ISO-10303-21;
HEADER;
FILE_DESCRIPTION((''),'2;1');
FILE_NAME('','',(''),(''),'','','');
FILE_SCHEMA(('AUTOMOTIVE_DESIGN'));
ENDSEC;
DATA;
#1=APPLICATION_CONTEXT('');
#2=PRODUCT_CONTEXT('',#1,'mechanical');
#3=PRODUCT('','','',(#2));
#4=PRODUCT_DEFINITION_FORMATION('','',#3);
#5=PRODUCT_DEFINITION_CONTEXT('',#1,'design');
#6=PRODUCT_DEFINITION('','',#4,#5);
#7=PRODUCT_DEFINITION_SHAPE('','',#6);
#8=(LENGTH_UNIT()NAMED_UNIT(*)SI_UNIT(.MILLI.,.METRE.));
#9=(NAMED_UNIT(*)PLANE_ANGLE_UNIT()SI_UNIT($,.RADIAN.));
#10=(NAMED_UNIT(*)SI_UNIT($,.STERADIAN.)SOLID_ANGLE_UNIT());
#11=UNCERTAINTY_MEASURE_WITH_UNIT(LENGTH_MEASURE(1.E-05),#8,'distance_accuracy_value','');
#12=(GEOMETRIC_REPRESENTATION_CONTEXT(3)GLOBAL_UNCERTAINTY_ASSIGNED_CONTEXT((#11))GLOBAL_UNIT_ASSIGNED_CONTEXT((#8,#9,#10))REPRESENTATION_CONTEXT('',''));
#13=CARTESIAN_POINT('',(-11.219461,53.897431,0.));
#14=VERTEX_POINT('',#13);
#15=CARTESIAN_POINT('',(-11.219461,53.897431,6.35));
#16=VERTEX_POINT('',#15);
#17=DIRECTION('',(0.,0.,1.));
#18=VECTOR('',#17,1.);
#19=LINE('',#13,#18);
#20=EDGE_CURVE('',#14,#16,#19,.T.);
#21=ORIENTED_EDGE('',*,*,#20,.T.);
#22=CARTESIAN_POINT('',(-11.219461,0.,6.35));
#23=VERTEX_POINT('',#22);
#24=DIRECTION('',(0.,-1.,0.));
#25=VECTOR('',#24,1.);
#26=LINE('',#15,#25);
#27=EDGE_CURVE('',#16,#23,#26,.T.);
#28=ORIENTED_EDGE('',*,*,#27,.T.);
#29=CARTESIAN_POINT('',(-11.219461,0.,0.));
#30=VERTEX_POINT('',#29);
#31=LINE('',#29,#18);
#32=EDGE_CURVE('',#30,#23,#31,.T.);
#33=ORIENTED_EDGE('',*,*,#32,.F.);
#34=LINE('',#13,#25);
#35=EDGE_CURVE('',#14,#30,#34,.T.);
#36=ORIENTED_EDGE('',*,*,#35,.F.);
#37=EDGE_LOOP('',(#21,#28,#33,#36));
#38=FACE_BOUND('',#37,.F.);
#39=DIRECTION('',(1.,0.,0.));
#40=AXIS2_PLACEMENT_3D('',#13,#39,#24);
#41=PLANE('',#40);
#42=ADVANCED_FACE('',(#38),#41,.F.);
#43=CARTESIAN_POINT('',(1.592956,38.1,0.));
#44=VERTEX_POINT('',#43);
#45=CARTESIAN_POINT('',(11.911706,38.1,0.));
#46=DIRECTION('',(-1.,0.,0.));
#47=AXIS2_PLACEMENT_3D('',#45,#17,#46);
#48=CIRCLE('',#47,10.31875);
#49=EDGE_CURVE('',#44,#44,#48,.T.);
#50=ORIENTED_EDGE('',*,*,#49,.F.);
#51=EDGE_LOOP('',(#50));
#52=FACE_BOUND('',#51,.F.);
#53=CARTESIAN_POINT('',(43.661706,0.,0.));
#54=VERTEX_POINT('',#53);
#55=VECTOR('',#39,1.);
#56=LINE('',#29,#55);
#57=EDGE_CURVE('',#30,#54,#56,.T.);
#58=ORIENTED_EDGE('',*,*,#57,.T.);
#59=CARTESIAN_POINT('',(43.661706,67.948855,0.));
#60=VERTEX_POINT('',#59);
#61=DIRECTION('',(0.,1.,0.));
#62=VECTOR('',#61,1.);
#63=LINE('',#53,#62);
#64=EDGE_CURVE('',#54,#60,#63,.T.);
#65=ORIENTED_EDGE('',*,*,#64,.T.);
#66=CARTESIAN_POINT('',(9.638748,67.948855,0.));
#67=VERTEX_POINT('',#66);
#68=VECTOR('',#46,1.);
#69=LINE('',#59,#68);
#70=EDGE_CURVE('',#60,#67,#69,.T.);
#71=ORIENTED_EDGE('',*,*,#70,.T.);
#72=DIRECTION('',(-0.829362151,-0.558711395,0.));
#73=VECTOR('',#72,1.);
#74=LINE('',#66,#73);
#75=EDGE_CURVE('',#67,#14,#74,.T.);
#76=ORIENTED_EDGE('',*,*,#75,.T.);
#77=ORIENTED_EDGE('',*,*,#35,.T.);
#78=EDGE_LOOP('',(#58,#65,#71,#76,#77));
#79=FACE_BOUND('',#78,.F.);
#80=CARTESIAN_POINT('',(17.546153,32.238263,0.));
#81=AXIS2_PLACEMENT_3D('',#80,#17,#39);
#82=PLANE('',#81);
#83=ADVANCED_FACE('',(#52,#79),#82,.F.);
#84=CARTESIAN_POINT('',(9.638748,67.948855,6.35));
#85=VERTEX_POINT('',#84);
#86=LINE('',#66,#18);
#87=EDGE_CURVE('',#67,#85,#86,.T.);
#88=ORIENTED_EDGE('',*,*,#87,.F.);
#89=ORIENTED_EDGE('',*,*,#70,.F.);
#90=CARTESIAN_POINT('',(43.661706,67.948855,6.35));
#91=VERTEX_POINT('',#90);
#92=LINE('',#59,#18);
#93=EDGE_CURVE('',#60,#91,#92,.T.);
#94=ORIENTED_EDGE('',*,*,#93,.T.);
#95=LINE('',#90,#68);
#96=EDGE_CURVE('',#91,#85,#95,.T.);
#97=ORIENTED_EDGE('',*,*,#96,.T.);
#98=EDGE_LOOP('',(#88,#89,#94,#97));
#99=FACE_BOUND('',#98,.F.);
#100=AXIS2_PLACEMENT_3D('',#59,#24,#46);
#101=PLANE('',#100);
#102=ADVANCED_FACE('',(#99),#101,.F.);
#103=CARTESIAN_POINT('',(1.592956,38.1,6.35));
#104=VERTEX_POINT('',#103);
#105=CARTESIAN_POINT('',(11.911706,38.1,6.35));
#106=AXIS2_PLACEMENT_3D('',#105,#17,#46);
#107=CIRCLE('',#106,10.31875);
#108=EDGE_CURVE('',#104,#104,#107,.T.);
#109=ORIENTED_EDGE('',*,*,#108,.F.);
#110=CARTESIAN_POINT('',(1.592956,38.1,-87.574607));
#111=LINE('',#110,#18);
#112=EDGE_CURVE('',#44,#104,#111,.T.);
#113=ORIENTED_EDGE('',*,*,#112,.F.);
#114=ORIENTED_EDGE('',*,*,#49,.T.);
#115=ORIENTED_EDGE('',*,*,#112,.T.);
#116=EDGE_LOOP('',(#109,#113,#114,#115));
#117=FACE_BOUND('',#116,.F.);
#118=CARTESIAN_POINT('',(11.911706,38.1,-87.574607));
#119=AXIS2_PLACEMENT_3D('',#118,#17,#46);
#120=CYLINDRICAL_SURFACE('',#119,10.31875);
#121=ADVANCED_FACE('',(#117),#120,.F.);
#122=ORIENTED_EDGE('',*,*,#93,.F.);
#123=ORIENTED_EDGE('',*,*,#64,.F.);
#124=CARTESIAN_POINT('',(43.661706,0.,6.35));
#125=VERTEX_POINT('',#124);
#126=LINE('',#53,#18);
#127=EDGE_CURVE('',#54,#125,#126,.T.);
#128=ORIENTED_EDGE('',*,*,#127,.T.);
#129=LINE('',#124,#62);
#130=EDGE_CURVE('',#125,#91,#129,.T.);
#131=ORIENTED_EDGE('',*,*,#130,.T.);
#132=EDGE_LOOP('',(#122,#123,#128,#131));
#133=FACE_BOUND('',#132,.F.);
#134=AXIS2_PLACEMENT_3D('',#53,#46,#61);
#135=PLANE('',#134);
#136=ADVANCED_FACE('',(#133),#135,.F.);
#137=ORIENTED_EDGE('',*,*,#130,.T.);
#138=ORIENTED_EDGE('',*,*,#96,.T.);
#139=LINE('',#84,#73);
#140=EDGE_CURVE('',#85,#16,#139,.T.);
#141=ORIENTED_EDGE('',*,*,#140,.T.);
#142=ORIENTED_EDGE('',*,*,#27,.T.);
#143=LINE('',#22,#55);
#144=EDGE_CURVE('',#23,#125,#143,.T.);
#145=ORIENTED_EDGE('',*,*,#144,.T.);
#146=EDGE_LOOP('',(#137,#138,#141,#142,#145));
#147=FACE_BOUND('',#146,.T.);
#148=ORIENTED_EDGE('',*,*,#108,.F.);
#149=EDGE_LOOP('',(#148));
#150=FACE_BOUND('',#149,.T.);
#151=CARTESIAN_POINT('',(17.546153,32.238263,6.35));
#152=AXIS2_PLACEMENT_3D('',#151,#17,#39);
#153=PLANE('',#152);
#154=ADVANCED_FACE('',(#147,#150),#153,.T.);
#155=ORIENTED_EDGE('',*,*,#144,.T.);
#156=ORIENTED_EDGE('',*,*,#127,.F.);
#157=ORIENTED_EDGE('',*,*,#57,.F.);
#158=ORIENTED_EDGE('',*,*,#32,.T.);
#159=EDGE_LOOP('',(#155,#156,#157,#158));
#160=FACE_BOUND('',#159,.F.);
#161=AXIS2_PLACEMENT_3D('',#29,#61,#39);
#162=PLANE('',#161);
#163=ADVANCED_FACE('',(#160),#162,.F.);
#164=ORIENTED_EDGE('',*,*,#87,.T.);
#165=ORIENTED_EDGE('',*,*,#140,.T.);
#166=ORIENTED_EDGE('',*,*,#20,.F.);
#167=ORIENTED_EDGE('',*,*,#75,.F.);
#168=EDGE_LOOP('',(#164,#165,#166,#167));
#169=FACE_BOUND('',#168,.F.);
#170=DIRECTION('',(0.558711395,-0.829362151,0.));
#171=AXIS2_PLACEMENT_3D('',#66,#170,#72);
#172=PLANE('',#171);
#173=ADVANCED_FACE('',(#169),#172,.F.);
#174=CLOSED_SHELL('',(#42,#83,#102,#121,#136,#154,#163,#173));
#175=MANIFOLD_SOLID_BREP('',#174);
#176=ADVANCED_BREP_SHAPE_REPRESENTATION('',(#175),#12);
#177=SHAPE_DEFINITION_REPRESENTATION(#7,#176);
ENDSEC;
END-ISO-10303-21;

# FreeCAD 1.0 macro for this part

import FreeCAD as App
import Part
import Sketcher
from FreeCAD import Vector
Q = App.Units.Quantity


def add_polygon(sketch, points):
    """Adds a closed chain of lines whose ends are joined by coincident constraints."""
    first, n = sketch.GeometryCount, len(points)
    for a, b in zip(points, points[1:] + points[:1]):
        sketch.addGeometry(Part.LineSegment(App.Vector(*a, 0), App.Vector(*b, 0)), False)
    for i in range(n):
        sketch.addConstraint(Sketcher.Constraint("Coincident", first + i, 2, first + (i + 1) % n, 1))

doc = App.newDocument("Part")
body = doc.addObject("PartDesign::Body", "Body")

# Sketch on XY plane
sketch1 = doc.addObject("Sketcher::SketchObject", "Sketch")
body.addObject(sketch1)
sketch1.AttachmentSupport = (doc.XY_Plane, [""])
sketch1.MapMode = "FlatFace"
add_polygon(sketch1, [(44, 68), (10, 68), (-11, 54), (-11, 0), (44, 0)])  # lines 0-4
sketch1.addConstraint([
    Sketcher.Constraint("Horizontal", 0),
    Sketcher.Constraint("Vertical", 2),
    Sketcher.Constraint("Horizontal", 3),
    Sketcher.Constraint("Vertical", 4),
    Sketcher.Constraint("PointOnObject", 2, 2, -1),
    Sketcher.Constraint("Distance", 1, 25.149699),
    Sketcher.Constraint("DistanceX", 0, 2, 0, 1, 34.022959),
    Sketcher.Constraint("DistanceY", 2, 2, 2, 1, 53.897431),
    Sketcher.Constraint("DistanceX", 3, 1, 3, 2, 54.881167),
    Sketcher.Constraint("DistanceX", 1, 2, -1, 1, 11.219461),
])
pad1 = doc.addObject("PartDesign::Pad", "Pad")
body.addObject(pad1)
pad1.Profile = sketch1
pad1.Length = Q("0.25 in")

# Sketch on XY plane
sketch2 = doc.addObject("Sketcher::SketchObject", "Sketch001")
body.addObject(sketch2)
sketch2.AttachmentSupport = (doc.XY_Plane, [""])
sketch2.MapMode = "FlatFace"
sketch2.addGeometry(Part.Circle(Vector(12, 38, 0), Vector(0, 0, 1), 10), False)
sketch2.addConstraint([
    Sketcher.Constraint("Diameter", 0, Q("0.8125 in")),
    Sketcher.Constraint("DistanceY", -1, 1, 0, 3, Q("1.5 in")),
    Sketcher.Constraint("DistanceX", -1, 1, 0, 3, 11.911706),
])
doc.recompute()
hole = doc.addObject("PartDesign::Hole", "Hole")
body.addObject(hole)
hole.Profile = sketch2
hole.ThreadType = "None"
hole.Diameter = Q("0.8125 in")
hole.DepthType = "ThroughAll"
hole.Reversed = True

doc.recompute()
